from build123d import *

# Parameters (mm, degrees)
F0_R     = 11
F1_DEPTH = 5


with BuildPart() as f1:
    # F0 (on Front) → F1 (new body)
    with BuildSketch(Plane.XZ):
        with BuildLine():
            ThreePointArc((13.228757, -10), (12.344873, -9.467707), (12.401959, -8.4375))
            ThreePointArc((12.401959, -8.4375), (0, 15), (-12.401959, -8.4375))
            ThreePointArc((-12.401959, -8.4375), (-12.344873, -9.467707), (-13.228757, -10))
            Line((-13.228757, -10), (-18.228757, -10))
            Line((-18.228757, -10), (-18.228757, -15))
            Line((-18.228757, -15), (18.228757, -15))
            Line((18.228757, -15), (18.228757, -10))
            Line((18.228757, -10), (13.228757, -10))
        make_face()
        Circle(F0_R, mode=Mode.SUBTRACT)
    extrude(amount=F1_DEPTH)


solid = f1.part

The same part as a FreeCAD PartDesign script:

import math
import FreeCAD as App
import Part
import Sketcher

V = App.Vector

doc = App.newDocument("Part")
params = doc.addObject("Spreadsheet::Sheet", "Params")
for row, (alias, value) in enumerate([
    ("sketch1_diameter", "22 mm"),
    ("sketch1_radius", "1 mm"),
    ("sketch1_radius2", "15 mm"),
    ("sketch1_width", "5 mm"),
    ("pad1_length", "5 mm"),
], start=1):
    params.set(f"A{row}", alias)
    params.set(f"B{row}", "=" + value)
    params.setAlias(f"B{row}", alias)

body = doc.addObject("PartDesign::Body", "Body")

sketch1 = body.newObject("Sketcher::SketchObject", "Sketch")
sketch1.AttachmentSupport = (doc.getObject("XZ_Plane"), [""])
sketch1.MapMode = "FlatFace"
sketch1.addGeometry([
    Part.ArcOfCircle(Part.Circle(V(13.2, -9, 0), V(0, 0, 1), 1), math.radians(146), math.radians(270)),
    Part.ArcOfCircle(Part.Circle(V(0, 0, 0), V(0, 0, 1), 15), math.radians(-34), math.radians(214)),
    Part.ArcOfCircle(Part.Circle(V(-13.2, -9, 0), V(0, 0, 1), 1), math.radians(-90), math.radians(34)),
    Part.LineSegment(V(-13.2, -10, 0), V(-18.2, -10, 0)),
    Part.LineSegment(V(-18.2, -10, 0), V(-18.2, -15, 0)),
    Part.LineSegment(V(-18.2, -15, 0), V(18.2, -15, 0)),
    Part.LineSegment(V(18.2, -15, 0), V(18.2, -10, 0)),
    Part.LineSegment(V(18.2, -10, 0), V(13.2, -10, 0)),
    Part.Circle(V(0, 0, 0), V(0, 0, 1), 11),
], False)
sketch1.addConstraint([
    Sketcher.Constraint("Tangent", 0, 1, 1, 1),
    Sketcher.Constraint("Tangent", 1, 2, 2, 2),
    Sketcher.Constraint("Tangent", 2, 1, 3, 1),
    Sketcher.Constraint("Coincident", 3, 2, 4, 1),
    Sketcher.Constraint("Coincident", 4, 2, 5, 1),
    Sketcher.Constraint("Coincident", 5, 2, 6, 1),
    Sketcher.Constraint("Coincident", 6, 2, 7, 1),
    Sketcher.Constraint("Tangent", 7, 2, 0, 2),
    Sketcher.Constraint("Horizontal", 3),
    Sketcher.Constraint("Vertical", 4),
    Sketcher.Constraint("Horizontal", 5),
    Sketcher.Constraint("Vertical", 6),
    Sketcher.Constraint("Horizontal", 7),
    Sketcher.Constraint("Coincident", 1, 3, -1, 1),
    Sketcher.Constraint("Coincident", 8, 3, -1, 1),
    Sketcher.Constraint("Equal", 0, 2),
    Sketcher.Constraint("Symmetric", 3, 2, 6, 2, -2),
    Sketcher.Constraint("Equal", 7, 4),
    Sketcher.Constraint("Diameter", 8, 22.0),
    Sketcher.Constraint("Radius", 0, 1.0),
    Sketcher.Constraint("Radius", 1, 15.0),
    Sketcher.Constraint("DistanceX", 3, 2, 3, 1, 5.0),
    Sketcher.Constraint("DistanceY", 0, 3, -1, 1, 9.0),
])
sketch1.setExpression("Constraints[18]", "Params.sketch1_diameter")
sketch1.setExpression("Constraints[19]", "Params.sketch1_radius")
sketch1.setExpression("Constraints[20]", "Params.sketch1_radius2")
sketch1.setExpression("Constraints[21]", "Params.sketch1_width")
pad1 = body.newObject("PartDesign::Pad", "Pad")
pad1.Profile = sketch1
pad1.setExpression("Length", "Params.pad1_length")

doc.recompute()
